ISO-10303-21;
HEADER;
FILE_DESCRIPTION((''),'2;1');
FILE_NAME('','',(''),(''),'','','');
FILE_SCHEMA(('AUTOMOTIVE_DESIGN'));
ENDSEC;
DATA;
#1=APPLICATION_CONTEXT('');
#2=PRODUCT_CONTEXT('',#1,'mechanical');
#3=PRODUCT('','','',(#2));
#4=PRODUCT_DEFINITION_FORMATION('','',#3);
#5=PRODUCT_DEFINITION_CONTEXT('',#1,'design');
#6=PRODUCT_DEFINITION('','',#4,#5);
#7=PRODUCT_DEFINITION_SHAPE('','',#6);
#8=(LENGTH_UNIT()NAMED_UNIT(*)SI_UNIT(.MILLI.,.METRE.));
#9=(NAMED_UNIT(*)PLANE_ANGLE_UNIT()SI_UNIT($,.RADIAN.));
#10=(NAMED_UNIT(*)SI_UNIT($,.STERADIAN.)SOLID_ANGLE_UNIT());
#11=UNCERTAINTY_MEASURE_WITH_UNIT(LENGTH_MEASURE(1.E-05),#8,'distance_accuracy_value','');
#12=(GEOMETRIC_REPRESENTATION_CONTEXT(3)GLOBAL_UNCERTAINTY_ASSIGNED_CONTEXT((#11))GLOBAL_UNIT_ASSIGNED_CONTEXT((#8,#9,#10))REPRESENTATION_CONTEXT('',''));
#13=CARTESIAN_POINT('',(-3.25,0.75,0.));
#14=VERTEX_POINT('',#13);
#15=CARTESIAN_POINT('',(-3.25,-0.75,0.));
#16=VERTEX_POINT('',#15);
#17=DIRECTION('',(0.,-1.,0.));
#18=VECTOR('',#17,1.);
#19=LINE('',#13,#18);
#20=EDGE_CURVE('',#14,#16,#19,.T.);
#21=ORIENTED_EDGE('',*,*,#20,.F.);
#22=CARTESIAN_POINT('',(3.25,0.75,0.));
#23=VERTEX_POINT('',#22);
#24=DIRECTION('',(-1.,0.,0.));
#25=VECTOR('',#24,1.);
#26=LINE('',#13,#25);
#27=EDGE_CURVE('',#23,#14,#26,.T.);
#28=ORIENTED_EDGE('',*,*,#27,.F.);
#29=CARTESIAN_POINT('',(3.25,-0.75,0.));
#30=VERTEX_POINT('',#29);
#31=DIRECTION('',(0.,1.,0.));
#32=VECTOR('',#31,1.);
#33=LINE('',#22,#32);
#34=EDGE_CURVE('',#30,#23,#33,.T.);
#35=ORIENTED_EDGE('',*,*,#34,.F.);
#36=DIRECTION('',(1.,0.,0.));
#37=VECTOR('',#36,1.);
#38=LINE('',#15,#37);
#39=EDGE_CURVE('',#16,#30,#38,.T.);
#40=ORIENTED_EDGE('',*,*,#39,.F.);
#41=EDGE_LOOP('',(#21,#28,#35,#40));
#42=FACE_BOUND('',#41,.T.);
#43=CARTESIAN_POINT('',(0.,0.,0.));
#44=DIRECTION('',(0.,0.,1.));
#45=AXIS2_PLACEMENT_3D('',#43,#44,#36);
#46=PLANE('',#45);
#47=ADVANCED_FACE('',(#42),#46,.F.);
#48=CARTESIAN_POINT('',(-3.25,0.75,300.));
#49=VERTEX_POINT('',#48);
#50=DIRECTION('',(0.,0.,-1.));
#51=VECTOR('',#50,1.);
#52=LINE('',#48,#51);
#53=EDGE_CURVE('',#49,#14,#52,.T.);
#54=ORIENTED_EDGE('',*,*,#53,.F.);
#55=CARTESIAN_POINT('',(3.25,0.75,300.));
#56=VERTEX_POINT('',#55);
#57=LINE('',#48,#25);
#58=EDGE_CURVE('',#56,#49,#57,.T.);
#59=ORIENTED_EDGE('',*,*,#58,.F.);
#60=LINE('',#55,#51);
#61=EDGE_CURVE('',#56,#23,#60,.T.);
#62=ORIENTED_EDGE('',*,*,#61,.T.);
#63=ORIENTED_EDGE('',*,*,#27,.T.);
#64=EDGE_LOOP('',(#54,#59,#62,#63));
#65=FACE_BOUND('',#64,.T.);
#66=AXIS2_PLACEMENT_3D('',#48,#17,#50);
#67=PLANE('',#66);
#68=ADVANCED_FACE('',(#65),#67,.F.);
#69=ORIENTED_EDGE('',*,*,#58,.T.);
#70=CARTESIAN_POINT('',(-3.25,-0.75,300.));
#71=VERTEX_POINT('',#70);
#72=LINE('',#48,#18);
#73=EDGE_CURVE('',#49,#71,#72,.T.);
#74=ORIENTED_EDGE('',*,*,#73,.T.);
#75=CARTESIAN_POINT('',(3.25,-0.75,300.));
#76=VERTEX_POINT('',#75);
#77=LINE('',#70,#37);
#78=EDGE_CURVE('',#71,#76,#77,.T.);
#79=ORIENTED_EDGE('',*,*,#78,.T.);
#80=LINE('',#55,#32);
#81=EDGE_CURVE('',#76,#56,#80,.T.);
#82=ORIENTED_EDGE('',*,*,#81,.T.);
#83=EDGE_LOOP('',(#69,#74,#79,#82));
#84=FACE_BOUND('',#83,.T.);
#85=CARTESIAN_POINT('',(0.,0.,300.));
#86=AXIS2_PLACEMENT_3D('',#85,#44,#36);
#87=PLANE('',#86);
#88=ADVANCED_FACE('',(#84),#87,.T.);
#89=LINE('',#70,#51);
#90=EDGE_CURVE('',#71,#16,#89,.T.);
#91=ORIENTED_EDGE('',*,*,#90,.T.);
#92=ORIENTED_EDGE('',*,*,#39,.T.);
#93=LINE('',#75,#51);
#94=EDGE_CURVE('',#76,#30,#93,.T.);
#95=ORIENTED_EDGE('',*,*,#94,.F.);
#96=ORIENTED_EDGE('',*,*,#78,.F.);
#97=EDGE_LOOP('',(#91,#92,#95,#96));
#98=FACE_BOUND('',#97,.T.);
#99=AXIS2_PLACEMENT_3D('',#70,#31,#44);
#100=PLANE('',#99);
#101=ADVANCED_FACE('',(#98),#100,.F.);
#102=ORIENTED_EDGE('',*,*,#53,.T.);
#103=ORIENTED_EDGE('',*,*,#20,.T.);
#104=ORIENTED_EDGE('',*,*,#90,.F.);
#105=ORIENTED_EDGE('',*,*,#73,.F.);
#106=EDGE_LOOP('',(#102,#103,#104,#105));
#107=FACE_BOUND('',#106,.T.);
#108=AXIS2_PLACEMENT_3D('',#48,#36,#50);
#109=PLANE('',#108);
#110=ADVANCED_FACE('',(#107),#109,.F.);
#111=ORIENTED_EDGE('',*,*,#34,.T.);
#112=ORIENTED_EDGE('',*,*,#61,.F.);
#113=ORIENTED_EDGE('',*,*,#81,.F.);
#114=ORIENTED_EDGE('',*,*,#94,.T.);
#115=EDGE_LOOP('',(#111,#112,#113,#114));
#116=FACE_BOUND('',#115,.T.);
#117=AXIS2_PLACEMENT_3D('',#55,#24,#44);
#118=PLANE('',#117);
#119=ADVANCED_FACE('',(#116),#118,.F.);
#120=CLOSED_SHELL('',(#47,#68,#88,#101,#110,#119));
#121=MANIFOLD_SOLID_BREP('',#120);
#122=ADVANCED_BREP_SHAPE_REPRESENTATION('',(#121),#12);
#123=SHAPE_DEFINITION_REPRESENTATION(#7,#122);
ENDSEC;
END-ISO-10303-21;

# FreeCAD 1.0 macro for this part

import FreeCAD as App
import Part
import Sketcher

V = App.Vector


def add_polygon(sketch, points):
    """Adds a closed chain of lines whose ends are joined by coincident constraints."""
    first, n = sketch.GeometryCount, len(points)
    for a, b in zip(points, points[1:] + points[:1]):
        sketch.addGeometry(Part.LineSegment(App.Vector(*a, 0), App.Vector(*b, 0)), False)
    for i in range(n):
        sketch.addConstraint(Sketcher.Constraint("Coincident", first + i, 2, first + (i + 1) % n, 1))

doc = App.newDocument("Part")
body = doc.addObject("PartDesign::Body", "Body")

# Sketch on XY plane
sketch1 = body.newObject("Sketcher::SketchObject", "Sketch")
sketch1.AttachmentSupport = (doc.getObject("XY_Plane"), [""])
sketch1.MapMode = "FlatFace"
add_polygon(sketch1, [(-3.2, 0.8), (-3.2, -0.8), (3.2, -0.8), (3.2, 0.8)])  # lines 0-3
sketch1.addConstraint([
    Sketcher.Constraint("Vertical", 0),
    Sketcher.Constraint("Horizontal", 1),
    Sketcher.Constraint("Vertical", 2),
    Sketcher.Constraint("Horizontal", 3),
    Sketcher.Constraint("Symmetric", 0, 2, 2, 2, -1, 1),
    Sketcher.Constraint("DistanceX", 1, 1, 1, 2, 6.5),
    Sketcher.Constraint("DistanceY", 0, 2, 0, 1, 1.5),
])
pad1 = body.newObject("PartDesign::Pad", "Pad")
pad1.Profile = sketch1
pad1.Length = 300

doc.recompute()
